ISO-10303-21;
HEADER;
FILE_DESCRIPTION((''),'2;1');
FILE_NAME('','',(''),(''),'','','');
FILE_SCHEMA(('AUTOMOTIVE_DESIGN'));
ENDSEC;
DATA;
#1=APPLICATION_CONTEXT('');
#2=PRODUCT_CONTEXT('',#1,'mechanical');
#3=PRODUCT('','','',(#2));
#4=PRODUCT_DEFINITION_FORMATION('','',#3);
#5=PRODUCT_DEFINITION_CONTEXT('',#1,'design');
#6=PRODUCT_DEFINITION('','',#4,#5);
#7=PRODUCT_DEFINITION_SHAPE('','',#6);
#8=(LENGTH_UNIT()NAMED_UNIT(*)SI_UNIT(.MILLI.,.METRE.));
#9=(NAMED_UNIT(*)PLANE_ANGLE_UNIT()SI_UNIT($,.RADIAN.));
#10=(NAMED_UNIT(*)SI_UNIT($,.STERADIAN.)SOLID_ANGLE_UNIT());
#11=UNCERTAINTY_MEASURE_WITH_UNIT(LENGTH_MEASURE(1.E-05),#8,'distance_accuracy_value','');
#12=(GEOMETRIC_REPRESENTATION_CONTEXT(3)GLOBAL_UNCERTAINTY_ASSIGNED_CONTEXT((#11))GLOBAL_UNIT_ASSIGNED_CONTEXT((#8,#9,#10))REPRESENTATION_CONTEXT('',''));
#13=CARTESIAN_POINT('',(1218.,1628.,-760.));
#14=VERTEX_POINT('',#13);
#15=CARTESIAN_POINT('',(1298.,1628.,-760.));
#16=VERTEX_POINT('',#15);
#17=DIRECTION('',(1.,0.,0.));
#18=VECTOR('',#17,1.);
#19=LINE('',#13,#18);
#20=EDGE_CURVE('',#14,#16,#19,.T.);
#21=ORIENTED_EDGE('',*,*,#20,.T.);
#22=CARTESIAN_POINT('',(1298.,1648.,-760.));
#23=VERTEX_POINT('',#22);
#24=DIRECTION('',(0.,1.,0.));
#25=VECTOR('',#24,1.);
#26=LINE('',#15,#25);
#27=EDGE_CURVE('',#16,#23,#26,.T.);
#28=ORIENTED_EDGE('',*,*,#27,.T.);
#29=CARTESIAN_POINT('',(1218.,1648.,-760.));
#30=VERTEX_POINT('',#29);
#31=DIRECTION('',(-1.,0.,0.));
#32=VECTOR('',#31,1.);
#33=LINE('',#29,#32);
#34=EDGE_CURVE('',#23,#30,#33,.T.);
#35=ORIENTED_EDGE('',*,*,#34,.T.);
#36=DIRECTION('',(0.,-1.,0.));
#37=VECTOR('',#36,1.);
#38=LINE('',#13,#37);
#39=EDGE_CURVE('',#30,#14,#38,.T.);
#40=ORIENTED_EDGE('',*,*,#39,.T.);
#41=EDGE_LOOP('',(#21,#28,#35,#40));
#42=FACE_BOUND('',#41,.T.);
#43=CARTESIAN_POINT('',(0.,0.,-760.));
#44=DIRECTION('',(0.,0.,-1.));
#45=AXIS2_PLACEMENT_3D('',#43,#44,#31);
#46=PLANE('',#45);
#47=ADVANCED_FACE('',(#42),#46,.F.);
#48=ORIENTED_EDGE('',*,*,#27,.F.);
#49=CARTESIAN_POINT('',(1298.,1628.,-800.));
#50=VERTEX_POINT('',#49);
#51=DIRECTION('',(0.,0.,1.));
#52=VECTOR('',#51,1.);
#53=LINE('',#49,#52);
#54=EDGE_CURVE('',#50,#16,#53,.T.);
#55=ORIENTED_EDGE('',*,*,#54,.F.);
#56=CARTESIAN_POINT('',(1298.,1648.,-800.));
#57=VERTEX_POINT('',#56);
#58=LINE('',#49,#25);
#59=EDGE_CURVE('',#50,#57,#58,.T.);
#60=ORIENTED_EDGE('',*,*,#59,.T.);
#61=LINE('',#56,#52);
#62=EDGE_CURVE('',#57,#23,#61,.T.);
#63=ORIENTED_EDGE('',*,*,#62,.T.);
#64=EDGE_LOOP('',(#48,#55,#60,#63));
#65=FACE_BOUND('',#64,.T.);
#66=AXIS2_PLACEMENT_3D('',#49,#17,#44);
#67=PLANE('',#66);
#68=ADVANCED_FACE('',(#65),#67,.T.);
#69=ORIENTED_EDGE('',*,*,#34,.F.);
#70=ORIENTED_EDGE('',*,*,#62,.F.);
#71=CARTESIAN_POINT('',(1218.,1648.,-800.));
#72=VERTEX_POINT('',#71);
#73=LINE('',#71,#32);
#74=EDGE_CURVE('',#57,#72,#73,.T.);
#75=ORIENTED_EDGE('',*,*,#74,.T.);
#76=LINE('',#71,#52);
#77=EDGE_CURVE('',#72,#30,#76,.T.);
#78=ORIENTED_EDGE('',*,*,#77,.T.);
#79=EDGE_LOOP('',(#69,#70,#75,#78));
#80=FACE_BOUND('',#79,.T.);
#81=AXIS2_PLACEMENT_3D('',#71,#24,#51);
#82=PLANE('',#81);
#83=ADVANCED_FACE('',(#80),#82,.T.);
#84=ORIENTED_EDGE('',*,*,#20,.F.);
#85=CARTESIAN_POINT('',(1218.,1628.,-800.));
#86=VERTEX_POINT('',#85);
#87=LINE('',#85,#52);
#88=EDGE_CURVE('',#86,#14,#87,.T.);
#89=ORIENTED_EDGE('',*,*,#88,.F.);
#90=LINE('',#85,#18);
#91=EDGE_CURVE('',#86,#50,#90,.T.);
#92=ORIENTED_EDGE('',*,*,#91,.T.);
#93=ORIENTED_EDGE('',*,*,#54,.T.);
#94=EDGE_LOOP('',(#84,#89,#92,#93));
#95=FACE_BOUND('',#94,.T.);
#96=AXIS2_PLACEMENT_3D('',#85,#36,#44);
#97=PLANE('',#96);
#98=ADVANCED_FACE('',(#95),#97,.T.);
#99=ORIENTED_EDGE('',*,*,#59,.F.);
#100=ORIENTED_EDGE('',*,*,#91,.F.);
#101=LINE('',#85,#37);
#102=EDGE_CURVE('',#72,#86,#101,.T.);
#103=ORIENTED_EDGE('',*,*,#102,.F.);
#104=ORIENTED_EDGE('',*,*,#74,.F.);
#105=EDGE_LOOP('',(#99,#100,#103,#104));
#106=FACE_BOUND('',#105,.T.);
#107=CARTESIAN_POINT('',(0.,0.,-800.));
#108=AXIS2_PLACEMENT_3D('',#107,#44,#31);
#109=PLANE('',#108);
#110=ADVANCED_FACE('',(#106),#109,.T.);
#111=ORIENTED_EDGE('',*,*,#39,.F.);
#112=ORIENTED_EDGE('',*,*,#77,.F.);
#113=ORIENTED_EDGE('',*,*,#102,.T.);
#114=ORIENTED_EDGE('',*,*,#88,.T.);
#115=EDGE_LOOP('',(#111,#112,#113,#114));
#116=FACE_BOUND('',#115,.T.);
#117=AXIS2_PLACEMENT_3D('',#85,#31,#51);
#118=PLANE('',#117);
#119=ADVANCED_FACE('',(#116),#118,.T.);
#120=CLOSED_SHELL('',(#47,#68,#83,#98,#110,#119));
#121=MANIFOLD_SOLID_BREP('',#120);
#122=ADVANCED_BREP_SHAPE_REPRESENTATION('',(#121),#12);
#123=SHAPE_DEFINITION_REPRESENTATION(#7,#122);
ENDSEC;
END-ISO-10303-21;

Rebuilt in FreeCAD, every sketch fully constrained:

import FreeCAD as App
import Part
import Sketcher

V = App.Vector
Q = App.Units.Quantity

doc = App.newDocument("Part")
params = doc.addObject("Spreadsheet::Sheet", "Params")
for row, (alias, value) in enumerate([
    ("sketch1_width", "80 mm"),
    ("sketch1_height", "20 mm"),
    ("pad1_length", "40 mm"),
], start=1):
    params.set(f"A{row}", alias)
    params.set(f"B{row}", "=" + value)
    params.setAlias(f"B{row}", alias)

body = doc.addObject("PartDesign::Body", "Body")

# Sketch on XY plane
sketch1 = body.newObject("Sketcher::SketchObject", "Sketch")
sketch1.AttachmentSupport = (doc.getObject("XY_Plane"), [""])
sketch1.MapMode = "FlatFace"
sketch1.AttachmentOffset = App.Placement(V(0, 0, -760), App.Rotation())
sketch1.addGeometry([
    Part.LineSegment(V(1218, 1648, 0), V(1218, 1628, 0)),
    Part.LineSegment(V(1218, 1628, 0), V(1298, 1628, 0)),
    Part.LineSegment(V(1298, 1628, 0), V(1298, 1648, 0)),
    Part.LineSegment(V(1298, 1648, 0), V(1218, 1648, 0)),
], False)
sketch1.addConstraint([
    Sketcher.Constraint("Coincident", 0, 2, 1, 1),
    Sketcher.Constraint("Coincident", 1, 2, 2, 1),
    Sketcher.Constraint("Coincident", 2, 2, 3, 1),
    Sketcher.Constraint("Coincident", 3, 2, 0, 1),
    Sketcher.Constraint("Vertical", 0),
    Sketcher.Constraint("Horizontal", 1),
    Sketcher.Constraint("Vertical", 2),
    Sketcher.Constraint("Horizontal", 3),
    Sketcher.Constraint("DistanceX", 1, 1, 1, 2, Q("80 mm")),
    Sketcher.Constraint("DistanceY", 0, 2, 0, 1, Q("20 mm")),
    Sketcher.Constraint("DistanceX", -1, 1, 0, 2, Q("1218 mm")),
    Sketcher.Constraint("DistanceY", -1, 1, 0, 2, Q("1628 mm")),
])
sketch1.setExpression("Constraints[8]", "Params.sketch1_width")
sketch1.setExpression("Constraints[9]", "Params.sketch1_height")
pad1 = body.newObject("PartDesign::Pad", "Pad")
pad1.Profile = sketch1
pad1.setExpression("Length", "Params.pad1_length")
pad1.Reversed = True

doc.recompute()
